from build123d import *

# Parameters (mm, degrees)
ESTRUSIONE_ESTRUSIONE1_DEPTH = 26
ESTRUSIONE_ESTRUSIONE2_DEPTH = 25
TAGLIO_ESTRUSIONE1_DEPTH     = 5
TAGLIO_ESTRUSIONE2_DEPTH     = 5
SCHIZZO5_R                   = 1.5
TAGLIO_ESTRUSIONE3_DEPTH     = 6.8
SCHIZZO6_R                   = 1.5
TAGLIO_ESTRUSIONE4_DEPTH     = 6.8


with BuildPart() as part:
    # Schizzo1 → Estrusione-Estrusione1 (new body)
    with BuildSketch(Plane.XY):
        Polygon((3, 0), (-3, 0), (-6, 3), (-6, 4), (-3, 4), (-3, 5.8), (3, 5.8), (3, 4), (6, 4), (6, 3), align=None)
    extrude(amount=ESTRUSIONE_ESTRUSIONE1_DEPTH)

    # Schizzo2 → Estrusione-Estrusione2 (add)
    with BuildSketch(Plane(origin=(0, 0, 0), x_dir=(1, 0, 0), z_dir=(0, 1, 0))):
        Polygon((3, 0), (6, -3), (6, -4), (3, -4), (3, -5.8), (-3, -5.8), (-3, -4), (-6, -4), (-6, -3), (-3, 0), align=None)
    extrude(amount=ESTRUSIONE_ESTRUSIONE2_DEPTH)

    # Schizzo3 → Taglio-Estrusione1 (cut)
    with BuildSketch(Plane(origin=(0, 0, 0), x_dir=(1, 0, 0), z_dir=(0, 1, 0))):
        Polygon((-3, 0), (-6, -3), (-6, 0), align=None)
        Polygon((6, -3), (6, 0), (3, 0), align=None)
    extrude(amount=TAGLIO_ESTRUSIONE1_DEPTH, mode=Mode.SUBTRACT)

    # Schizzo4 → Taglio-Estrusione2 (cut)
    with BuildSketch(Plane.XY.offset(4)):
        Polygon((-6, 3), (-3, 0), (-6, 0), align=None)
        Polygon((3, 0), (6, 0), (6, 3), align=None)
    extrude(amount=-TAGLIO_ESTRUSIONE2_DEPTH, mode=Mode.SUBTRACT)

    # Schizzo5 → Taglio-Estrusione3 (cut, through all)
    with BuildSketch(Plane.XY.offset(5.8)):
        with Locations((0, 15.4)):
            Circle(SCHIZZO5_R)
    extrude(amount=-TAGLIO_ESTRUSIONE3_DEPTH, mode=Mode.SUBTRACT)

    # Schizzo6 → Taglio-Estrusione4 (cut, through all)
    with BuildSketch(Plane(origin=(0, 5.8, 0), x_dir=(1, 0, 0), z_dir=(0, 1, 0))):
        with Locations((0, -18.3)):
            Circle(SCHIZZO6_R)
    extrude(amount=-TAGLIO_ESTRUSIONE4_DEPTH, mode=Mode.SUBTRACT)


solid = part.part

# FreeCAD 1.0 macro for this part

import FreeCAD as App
import Part
import Sketcher

V = App.Vector
Q = App.Units.Quantity


def add_polygon(sketch, points):
    """Adds a closed chain of lines whose ends are joined by coincident constraints."""
    first, n = sketch.GeometryCount, len(points)
    for a, b in zip(points, points[1:] + points[:1]):
        sketch.addGeometry(Part.LineSegment(App.Vector(*a, 0), App.Vector(*b, 0)), False)
    for i in range(n):
        sketch.addConstraint(Sketcher.Constraint("Coincident", first + i, 2, first + (i + 1) % n, 1))

doc = App.newDocument("Part")
body = doc.addObject("PartDesign::Body", "Body")

# Sketch on XY plane
sketch1 = doc.addObject("Sketcher::SketchObject", "Sketch")
body.addObject(sketch1)
sketch1.AttachmentSupport = (doc.XY_Plane, [""])
sketch1.MapMode = "FlatFace"
add_polygon(sketch1, [(-3, 0), (3, 0), (6, 3), (6, 4), (3, 4), (3, 5.8), (-3, 5.8), (-3, 4), (-6, 4), (-6, 3)])  # lines 0-9
sketch1.addConstraint([
    Sketcher.Constraint("Horizontal", 0),
    Sketcher.Constraint("Vertical", 2),
    Sketcher.Constraint("Horizontal", 3),
    Sketcher.Constraint("Vertical", 4),
    Sketcher.Constraint("Horizontal", 5),
    Sketcher.Constraint("Vertical", 6),
    Sketcher.Constraint("Horizontal", 7),
    Sketcher.Constraint("Vertical", 8),
    Sketcher.Constraint("Symmetric", 0, 2, 9, 2, -1, 1),
    Sketcher.Constraint("Symmetric", 3, 2, 6, 2, -2),
    Sketcher.Constraint("Symmetric", 1, 2, 8, 2, -2),
    Sketcher.Constraint("Perpendicular", 1, 9),
    Sketcher.Constraint("Vertical", 0, 2, 3, 2),
    Sketcher.Constraint("DistanceX", 0, 1, 0, 2, Q("6 mm")),
    Sketcher.Constraint("DistanceX", 3, 2, 3, 1, Q("3 mm")),
    Sketcher.Constraint("DistanceY", 2, 1, 2, 2, Q("1 mm")),
    Sketcher.Constraint("DistanceY", 4, 1, 4, 2, Q("1.8 mm")),
])
pad1 = doc.addObject("PartDesign::Pad", "Pad")
body.addObject(pad1)
pad1.Profile = sketch1
pad1.Length = 26

# Sketch on XZ plane
sketch2 = doc.addObject("Sketcher::SketchObject", "Sketch001")
body.addObject(sketch2)
sketch2.AttachmentSupport = (doc.XZ_Plane, [""])
sketch2.MapMode = "FlatFace"
add_polygon(sketch2, [(6, 3), (3, 0), (-3, 0), (-6, 3), (-6, 4), (-3, 4), (-3, 5.8), (3, 5.8), (3, 4), (6, 4)])  # lines 0-9
sketch2.addConstraint([
    Sketcher.Constraint("Horizontal", 1),
    Sketcher.Constraint("Vertical", 3),
    Sketcher.Constraint("Horizontal", 4),
    Sketcher.Constraint("Vertical", 5),
    Sketcher.Constraint("Horizontal", 6),
    Sketcher.Constraint("Vertical", 7),
    Sketcher.Constraint("Horizontal", 8),
    Sketcher.Constraint("Vertical", 9),
    Sketcher.Constraint("Symmetric", 0, 2, 1, 2, -1, 1),
    Sketcher.Constraint("Symmetric", 4, 2, 7, 2, -2),
    Sketcher.Constraint("Symmetric", 2, 2, 9, 2, -2),
    Sketcher.Constraint("Perpendicular", 0, 2),
    Sketcher.Constraint("Vertical", 1, 2, 4, 2),
    Sketcher.Constraint("DistanceX", 1, 2, 1, 1, Q("6 mm")),
    Sketcher.Constraint("DistanceX", 4, 1, 4, 2, Q("3 mm")),
    Sketcher.Constraint("DistanceY", 3, 1, 3, 2, Q("1 mm")),
    Sketcher.Constraint("DistanceY", 5, 1, 5, 2, Q("1.8 mm")),
])
pad2 = doc.addObject("PartDesign::Pad", "Pad001")
body.addObject(pad2)
pad2.Profile = sketch2
pad2.Length = 25
pad2.Reversed = True

# Sketch on XZ plane
sketch3 = doc.addObject("Sketcher::SketchObject", "Sketch002")
body.addObject(sketch3)
sketch3.AttachmentSupport = (doc.XZ_Plane, [""])
sketch3.MapMode = "FlatFace"
add_polygon(sketch3, [(-6, 3), (-3, 0), (-6, 0)])  # lines 0-2
add_polygon(sketch3, [(6, 3), (6, 0), (3, 0)])  # lines 3-5
sketch3.addConstraint([
    Sketcher.Constraint("Horizontal", 1),
    Sketcher.Constraint("Vertical", 2),
    Sketcher.Constraint("Vertical", 3),
    Sketcher.Constraint("Horizontal", 4),
    Sketcher.Constraint("Symmetric", 1, 2, 3, 2, -1, 1),
    Sketcher.Constraint("Symmetric", 0, 2, 4, 2, -2),
    Sketcher.Constraint("Perpendicular", 0, 5),
    Sketcher.Constraint("Horizontal", 2, 2, 5, 2),
    Sketcher.Constraint("DistanceX", 1, 2, 1, 1, Q("3 mm")),
    Sketcher.Constraint("DistanceX", 0, 2, -1, 1, Q("3 mm")),
])
pocket1 = doc.addObject("PartDesign::Pocket", "Pocket")
body.addObject(pocket1)
pocket1.Profile = sketch3
pocket1.Length = 5

# Sketch on XY plane
sketch4 = doc.addObject("Sketcher::SketchObject", "Sketch003")
body.addObject(sketch4)
sketch4.AttachmentSupport = (doc.XY_Plane, [""])
sketch4.MapMode = "FlatFace"
sketch4.AttachmentOffset = App.Placement(V(0, 0, 4), App.Rotation())
add_polygon(sketch4, [(-3, 0), (-6, 3), (-6, 0)])  # lines 0-2
add_polygon(sketch4, [(3, 0), (6, 0), (6, 3)])  # lines 3-5
sketch4.addConstraint([
    Sketcher.Constraint("Vertical", 1),
    Sketcher.Constraint("Horizontal", 2),
    Sketcher.Constraint("Horizontal", 3),
    Sketcher.Constraint("Vertical", 4),
    Sketcher.Constraint("Symmetric", 1, 2, 3, 2, -1, 1),
    Sketcher.Constraint("Symmetric", 2, 2, 5, 2, -2),
    Sketcher.Constraint("Perpendicular", 0, 5),
    Sketcher.Constraint("Horizontal", 0, 2, 4, 2),
    Sketcher.Constraint("DistanceX", 2, 1, 2, 2, Q("3 mm")),
    Sketcher.Constraint("DistanceX", 0, 2, -1, 1, Q("6 mm")),
])
pocket2 = doc.addObject("PartDesign::Pocket", "Pocket001")
body.addObject(pocket2)
pocket2.Profile = sketch4
pocket2.Length = 5

# Sketch on XY plane
sketch5 = doc.addObject("Sketcher::SketchObject", "Sketch004")
body.addObject(sketch5)
sketch5.AttachmentSupport = (doc.XY_Plane, [""])
sketch5.MapMode = "FlatFace"
sketch5.AttachmentOffset = App.Placement(V(0, 0, 5.8), App.Rotation())
sketch5.addGeometry(Part.Circle(V(0, 15.4, 0), V(0, 0, 1), 1.5), False)
sketch5.addConstraint([
    Sketcher.Constraint("PointOnObject", 0, 3, -2),
    Sketcher.Constraint("Diameter", 0, Q("3 mm")),
    Sketcher.Constraint("DistanceY", -1, 1, 0, 3, Q("15.4 mm")),
])
pocket3 = doc.addObject("PartDesign::Pocket", "Pocket002")
body.addObject(pocket3)
pocket3.Profile = sketch5
pocket3.Type = "ThroughAll"

# Sketch on XZ plane
sketch6 = doc.addObject("Sketcher::SketchObject", "Sketch005")
body.addObject(sketch6)
sketch6.AttachmentSupport = (doc.XZ_Plane, [""])
sketch6.MapMode = "FlatFace"
sketch6.AttachmentOffset = App.Placement(V(0, 0, -5.8), App.Rotation())
sketch6.addGeometry(Part.Circle(V(0, 18.3, 0), V(0, 0, 1), 1.5), False)
sketch6.addConstraint([
    Sketcher.Constraint("PointOnObject", 0, 3, -2),
    Sketcher.Constraint("Diameter", 0, Q("3 mm")),
    Sketcher.Constraint("DistanceY", -1, 1, 0, 3, Q("18.3 mm")),
])
pocket4 = doc.addObject("PartDesign::Pocket", "Pocket003")
body.addObject(pocket4)
pocket4.Profile = sketch6
pocket4.Type = "ThroughAll"
pocket4.Reversed = True

doc.recompute()
